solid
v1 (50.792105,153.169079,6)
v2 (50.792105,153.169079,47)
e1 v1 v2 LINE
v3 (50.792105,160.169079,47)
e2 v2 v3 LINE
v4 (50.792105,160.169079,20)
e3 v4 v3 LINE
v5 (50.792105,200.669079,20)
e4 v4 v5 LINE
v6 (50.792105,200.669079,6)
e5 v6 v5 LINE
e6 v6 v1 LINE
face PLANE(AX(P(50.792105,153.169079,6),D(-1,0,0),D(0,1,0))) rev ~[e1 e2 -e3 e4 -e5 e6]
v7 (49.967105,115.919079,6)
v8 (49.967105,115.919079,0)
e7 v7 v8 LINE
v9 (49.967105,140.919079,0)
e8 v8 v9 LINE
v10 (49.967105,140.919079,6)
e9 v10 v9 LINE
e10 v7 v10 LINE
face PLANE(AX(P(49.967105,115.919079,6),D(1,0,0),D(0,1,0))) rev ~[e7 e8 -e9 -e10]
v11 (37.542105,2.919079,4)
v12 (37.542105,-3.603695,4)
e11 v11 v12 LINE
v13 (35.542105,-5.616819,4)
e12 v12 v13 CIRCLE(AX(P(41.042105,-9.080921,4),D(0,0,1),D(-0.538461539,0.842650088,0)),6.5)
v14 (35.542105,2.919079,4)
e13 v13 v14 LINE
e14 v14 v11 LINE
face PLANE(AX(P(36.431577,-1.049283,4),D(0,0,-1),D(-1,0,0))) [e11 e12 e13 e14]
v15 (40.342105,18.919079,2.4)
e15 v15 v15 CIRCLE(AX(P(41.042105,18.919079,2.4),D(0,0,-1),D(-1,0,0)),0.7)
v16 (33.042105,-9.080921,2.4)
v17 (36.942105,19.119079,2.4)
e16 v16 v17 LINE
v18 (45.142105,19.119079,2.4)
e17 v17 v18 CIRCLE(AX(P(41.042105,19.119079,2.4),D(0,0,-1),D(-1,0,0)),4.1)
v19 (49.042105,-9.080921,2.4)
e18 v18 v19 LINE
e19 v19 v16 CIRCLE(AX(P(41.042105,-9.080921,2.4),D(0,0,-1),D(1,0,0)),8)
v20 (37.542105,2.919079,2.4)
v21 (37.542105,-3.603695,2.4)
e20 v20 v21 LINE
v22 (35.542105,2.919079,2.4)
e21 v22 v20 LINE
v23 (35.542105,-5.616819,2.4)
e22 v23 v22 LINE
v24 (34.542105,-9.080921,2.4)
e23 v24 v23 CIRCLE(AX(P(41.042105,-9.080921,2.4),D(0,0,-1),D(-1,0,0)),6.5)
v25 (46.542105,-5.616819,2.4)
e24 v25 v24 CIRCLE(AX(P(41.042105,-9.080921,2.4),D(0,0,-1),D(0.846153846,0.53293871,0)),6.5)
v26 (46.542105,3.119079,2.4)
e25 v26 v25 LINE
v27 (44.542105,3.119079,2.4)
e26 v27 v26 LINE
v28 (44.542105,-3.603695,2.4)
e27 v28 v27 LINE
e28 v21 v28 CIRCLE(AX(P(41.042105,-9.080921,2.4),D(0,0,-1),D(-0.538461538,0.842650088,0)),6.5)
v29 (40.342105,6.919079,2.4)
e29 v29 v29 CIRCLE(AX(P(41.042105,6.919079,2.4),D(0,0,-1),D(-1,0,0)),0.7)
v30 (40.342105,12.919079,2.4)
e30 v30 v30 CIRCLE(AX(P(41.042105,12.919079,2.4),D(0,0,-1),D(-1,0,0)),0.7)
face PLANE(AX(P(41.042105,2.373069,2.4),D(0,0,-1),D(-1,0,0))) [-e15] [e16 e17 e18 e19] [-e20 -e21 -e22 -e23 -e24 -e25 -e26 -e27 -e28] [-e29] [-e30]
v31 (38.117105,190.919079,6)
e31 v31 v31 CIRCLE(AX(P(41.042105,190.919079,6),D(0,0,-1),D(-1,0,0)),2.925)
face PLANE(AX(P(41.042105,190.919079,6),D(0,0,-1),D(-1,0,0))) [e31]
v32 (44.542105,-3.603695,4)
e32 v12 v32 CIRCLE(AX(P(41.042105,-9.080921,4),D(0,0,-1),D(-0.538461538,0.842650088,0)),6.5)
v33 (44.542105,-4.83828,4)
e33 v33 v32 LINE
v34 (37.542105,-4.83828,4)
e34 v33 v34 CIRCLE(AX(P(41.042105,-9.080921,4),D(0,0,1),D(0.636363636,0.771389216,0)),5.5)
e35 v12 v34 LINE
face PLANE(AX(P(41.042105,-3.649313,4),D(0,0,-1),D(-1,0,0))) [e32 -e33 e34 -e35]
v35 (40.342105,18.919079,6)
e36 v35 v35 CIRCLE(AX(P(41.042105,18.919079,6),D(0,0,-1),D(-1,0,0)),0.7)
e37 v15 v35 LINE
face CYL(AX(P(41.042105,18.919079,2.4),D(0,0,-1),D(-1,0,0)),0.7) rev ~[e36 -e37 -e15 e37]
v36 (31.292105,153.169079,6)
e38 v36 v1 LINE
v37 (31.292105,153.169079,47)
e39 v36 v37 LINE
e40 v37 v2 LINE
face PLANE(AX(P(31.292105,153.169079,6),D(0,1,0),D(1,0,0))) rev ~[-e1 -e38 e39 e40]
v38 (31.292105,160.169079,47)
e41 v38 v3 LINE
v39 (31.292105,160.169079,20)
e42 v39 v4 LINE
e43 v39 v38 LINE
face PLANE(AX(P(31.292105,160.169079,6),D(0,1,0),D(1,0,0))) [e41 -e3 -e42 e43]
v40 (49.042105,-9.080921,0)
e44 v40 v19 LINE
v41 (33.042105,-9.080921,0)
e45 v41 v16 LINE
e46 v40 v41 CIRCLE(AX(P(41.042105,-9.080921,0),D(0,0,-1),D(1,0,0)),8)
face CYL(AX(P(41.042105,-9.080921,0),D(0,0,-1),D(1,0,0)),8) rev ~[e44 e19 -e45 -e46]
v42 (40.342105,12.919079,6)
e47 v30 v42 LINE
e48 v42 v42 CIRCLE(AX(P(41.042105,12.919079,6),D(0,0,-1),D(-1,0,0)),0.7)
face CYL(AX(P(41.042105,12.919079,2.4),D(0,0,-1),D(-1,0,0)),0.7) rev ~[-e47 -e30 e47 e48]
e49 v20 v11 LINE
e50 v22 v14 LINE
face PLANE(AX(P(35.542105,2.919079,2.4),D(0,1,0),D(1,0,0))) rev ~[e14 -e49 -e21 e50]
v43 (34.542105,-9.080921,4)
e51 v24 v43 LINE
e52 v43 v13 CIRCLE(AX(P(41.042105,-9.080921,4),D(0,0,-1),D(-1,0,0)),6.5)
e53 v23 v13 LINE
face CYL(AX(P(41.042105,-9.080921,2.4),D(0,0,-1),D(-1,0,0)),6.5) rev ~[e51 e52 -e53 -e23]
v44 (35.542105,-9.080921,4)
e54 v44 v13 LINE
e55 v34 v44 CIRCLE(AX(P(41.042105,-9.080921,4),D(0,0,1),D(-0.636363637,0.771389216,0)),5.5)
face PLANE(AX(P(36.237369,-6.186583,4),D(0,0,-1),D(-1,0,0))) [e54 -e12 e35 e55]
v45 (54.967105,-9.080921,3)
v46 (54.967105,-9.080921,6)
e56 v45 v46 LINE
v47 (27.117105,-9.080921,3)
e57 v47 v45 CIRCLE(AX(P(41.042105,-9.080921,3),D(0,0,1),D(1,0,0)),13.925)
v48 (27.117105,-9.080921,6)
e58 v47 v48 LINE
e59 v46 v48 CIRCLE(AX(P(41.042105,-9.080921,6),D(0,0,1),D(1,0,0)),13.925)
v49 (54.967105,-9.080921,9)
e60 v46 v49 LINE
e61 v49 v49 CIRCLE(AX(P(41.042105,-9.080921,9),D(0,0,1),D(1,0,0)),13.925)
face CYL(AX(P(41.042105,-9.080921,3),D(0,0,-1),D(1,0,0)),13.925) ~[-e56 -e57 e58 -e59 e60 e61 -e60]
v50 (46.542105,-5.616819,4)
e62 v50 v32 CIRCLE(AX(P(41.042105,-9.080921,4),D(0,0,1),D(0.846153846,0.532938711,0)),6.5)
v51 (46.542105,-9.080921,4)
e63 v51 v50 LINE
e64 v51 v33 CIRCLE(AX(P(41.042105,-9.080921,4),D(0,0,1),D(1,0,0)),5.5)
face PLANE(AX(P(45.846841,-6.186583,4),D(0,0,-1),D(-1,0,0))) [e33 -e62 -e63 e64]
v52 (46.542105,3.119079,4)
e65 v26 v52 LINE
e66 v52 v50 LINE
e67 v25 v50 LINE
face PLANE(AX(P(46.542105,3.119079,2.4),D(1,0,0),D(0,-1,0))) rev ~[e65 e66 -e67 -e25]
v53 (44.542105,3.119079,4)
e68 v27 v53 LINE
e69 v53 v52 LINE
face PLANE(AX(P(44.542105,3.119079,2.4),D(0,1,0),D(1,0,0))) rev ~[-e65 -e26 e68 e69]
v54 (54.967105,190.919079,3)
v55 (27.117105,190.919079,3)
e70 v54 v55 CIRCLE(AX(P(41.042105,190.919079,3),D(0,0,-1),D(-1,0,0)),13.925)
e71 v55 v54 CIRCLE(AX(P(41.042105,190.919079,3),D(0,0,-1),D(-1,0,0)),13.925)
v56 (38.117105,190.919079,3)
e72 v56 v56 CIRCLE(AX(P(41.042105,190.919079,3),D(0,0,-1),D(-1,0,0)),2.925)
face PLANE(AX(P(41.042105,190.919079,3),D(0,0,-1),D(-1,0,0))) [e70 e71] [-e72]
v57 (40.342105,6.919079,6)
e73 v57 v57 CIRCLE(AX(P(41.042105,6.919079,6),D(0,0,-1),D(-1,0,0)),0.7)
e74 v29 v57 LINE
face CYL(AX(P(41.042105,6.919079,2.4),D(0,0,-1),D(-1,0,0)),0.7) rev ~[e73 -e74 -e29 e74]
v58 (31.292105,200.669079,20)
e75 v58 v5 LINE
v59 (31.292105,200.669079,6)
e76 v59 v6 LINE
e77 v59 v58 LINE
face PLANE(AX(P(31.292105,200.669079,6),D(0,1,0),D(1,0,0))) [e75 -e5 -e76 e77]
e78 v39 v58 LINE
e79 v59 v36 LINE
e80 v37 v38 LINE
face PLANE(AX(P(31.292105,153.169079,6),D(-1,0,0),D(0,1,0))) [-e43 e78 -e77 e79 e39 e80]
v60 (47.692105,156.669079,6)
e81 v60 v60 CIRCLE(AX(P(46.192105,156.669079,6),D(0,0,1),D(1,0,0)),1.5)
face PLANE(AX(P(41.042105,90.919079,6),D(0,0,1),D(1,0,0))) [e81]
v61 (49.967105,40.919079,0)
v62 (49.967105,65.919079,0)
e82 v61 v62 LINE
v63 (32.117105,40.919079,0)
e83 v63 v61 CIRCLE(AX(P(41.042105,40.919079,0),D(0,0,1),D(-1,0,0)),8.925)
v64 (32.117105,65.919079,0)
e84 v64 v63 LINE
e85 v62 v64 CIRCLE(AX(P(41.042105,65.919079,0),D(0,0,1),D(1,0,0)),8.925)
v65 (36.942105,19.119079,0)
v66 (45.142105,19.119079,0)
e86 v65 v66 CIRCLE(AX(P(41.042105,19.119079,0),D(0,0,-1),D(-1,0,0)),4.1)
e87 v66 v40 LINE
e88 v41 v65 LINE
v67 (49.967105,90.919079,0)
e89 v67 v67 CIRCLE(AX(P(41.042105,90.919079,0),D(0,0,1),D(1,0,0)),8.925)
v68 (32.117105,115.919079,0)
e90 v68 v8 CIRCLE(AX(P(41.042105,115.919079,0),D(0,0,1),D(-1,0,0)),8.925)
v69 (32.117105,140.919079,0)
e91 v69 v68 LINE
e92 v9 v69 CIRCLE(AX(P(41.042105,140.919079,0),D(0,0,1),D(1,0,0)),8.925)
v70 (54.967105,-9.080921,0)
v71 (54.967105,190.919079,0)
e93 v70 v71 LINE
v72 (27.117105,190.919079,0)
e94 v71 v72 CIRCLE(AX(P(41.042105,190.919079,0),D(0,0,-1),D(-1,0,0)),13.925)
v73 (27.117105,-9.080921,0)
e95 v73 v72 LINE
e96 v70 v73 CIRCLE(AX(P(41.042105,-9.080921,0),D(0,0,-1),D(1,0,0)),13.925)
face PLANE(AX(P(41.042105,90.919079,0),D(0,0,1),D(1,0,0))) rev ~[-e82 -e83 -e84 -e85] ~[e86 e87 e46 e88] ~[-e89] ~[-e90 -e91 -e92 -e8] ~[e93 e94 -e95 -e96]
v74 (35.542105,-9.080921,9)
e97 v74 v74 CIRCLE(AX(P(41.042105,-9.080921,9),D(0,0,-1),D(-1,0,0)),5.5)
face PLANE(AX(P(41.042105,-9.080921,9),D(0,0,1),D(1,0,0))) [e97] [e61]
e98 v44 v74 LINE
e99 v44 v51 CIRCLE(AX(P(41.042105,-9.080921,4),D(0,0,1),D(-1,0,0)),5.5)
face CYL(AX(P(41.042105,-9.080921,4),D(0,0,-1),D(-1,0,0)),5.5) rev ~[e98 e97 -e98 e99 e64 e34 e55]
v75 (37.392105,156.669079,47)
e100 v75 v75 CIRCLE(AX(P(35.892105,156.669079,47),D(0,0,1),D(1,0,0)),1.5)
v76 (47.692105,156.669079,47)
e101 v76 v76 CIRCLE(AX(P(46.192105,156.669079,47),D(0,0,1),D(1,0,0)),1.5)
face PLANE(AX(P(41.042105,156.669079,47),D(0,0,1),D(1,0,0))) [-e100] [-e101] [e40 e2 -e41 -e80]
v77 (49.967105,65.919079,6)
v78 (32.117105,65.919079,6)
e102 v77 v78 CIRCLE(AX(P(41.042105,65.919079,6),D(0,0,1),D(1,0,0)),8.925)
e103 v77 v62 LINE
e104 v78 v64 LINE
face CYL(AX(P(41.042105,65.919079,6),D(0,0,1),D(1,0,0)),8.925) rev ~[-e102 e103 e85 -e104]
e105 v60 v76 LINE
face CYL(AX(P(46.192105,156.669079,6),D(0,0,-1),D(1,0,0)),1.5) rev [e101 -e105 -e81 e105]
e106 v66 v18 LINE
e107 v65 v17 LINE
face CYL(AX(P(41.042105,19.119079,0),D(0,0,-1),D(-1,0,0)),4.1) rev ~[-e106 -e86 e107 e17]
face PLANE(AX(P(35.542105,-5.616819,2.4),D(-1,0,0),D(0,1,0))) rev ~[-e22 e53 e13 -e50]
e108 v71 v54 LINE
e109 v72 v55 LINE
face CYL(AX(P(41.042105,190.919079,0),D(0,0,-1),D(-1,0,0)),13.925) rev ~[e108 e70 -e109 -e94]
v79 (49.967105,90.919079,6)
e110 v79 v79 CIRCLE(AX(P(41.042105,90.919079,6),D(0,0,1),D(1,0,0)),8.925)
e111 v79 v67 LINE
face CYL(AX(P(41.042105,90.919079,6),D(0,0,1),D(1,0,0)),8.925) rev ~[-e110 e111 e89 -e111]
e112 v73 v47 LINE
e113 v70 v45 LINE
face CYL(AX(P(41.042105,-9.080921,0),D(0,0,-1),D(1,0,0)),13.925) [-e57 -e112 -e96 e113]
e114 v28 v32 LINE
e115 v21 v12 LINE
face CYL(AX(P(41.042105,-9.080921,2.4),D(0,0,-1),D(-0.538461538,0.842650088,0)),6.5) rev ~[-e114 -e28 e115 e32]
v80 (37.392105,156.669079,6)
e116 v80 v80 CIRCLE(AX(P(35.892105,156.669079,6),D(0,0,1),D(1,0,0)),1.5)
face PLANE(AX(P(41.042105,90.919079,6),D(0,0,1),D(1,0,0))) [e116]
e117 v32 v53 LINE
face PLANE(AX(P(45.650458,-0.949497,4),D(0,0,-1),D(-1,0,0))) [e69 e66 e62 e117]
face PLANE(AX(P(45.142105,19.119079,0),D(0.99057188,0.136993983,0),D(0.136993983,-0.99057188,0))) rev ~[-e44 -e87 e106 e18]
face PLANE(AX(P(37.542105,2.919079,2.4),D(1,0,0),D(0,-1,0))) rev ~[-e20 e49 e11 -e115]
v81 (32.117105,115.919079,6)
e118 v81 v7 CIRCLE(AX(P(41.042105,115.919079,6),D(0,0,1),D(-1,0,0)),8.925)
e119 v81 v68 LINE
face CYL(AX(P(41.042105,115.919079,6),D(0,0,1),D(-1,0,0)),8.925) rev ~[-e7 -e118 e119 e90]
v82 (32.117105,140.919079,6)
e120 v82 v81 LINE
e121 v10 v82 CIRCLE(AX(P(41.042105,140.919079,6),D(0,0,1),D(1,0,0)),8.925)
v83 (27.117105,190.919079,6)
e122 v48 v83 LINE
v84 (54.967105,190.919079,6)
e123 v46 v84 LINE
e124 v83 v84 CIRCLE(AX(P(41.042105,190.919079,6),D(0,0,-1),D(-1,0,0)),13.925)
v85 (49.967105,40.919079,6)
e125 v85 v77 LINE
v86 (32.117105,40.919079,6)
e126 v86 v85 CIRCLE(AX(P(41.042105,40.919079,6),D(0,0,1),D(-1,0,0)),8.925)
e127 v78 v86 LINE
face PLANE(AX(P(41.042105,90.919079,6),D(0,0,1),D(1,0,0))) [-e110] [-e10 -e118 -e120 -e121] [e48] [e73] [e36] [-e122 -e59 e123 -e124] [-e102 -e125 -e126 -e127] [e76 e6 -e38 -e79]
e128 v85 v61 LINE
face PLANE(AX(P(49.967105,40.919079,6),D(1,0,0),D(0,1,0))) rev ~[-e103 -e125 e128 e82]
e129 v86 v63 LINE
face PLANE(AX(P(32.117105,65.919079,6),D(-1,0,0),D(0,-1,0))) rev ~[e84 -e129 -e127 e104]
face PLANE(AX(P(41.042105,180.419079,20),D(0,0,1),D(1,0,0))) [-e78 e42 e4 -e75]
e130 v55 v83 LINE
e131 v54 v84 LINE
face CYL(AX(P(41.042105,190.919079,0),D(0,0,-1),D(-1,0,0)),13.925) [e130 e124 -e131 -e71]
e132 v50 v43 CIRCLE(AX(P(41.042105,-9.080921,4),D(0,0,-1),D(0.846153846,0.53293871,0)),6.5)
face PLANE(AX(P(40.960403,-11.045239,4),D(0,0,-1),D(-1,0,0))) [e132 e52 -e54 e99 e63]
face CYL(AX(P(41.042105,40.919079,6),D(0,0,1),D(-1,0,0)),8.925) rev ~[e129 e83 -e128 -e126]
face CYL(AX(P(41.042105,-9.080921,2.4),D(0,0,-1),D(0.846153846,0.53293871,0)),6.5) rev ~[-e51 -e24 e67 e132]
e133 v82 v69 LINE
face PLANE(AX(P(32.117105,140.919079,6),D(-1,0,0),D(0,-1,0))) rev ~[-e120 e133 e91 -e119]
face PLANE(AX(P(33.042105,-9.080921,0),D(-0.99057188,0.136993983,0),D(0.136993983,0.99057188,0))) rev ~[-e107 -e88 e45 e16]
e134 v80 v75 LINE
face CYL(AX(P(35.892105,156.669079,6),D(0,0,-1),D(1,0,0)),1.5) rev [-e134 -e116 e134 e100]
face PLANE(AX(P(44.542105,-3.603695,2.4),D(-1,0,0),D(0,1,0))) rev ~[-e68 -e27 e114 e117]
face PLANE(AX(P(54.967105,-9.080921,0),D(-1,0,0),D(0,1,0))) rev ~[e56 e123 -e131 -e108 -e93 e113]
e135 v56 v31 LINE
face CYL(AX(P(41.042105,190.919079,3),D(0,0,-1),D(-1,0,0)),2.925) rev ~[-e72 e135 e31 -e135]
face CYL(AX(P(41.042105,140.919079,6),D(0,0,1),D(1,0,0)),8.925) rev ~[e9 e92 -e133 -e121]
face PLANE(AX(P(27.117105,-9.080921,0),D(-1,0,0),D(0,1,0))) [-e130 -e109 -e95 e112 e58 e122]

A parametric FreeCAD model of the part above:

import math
import FreeCAD as App
import Part
import Sketcher

V = App.Vector
Q = App.Units.Quantity


def add_polygon(sketch, points):
    """Adds a closed chain of lines whose ends are joined by coincident constraints."""
    first, n = sketch.GeometryCount, len(points)
    for a, b in zip(points, points[1:] + points[:1]):
        sketch.addGeometry(Part.LineSegment(App.Vector(*a, 0), App.Vector(*b, 0)), False)
    for i in range(n):
        sketch.addConstraint(Sketcher.Constraint("Coincident", first + i, 2, first + (i + 1) % n, 1))

doc = App.newDocument("Part")
body = doc.addObject("PartDesign::Body", "Body")

# Sketch on XY plane
sketch1 = body.newObject("Sketcher::SketchObject", "Sketch")
sketch1.AttachmentSupport = (doc.getObject("XY_Plane"), [""])
sketch1.MapMode = "FlatFace"
sketch1.addGeometry(Part.LineSegment(V(27.117105, 190.919079, 0), V(27.117105, -9.080921, 0)), False)
sketch1.addGeometry(Part.ArcOfCircle(Part.Circle(V(41.042105, -9.080921, 0), V(0, 0, 1), 13.925), math.radians(180), math.radians(360)), False)
sketch1.addGeometry(Part.LineSegment(V(54.967105, -9.080921, 0), V(54.967105, 190.919079, 0)), False)
sketch1.addGeometry(Part.ArcOfCircle(Part.Circle(V(41.042105, 190.919079, 0), V(0, 0, 1), 13.925), math.radians(0), math.radians(180)), False)
sketch1.addConstraint(Sketcher.Constraint("Tangent", 0, 2, 1, 1))
sketch1.addConstraint(Sketcher.Constraint("Tangent", 1, 2, 2, 1))
sketch1.addConstraint(Sketcher.Constraint("Tangent", 2, 2, 3, 1))
sketch1.addConstraint(Sketcher.Constraint("Tangent", 3, 2, 0, 1))
sketch1.addConstraint(Sketcher.Constraint("Vertical", 0))
sketch1.addConstraint(Sketcher.Constraint("Vertical", 2))
sketch1.addConstraint(Sketcher.Constraint("DistanceY", 0, 2, 0, 1, Q("200 mm")))
sketch1.addConstraint(Sketcher.Constraint("Radius", 1, Q("13.925 mm")))
sketch1.addConstraint(Sketcher.Constraint("DistanceY", 1, 3, -1, 1, Q("9.080921 mm")))
sketch1.addConstraint(Sketcher.Constraint("DistanceX", -1, 1, 1, 3, Q("41.042105 mm")))
pad1 = body.newObject("PartDesign::Pad", "Pad")
pad1.Profile = sketch1
pad1.Length = 6

# Sketch on XY plane
sketch2 = body.newObject("Sketcher::SketchObject", "Sketch001")
sketch2.AttachmentSupport = (doc.getObject("XY_Plane"), [""])
sketch2.MapMode = "FlatFace"
sketch2.AttachmentOffset = App.Placement(V(0, 0, 3), App.Rotation())
sketch2.addGeometry(Part.Circle(V(41.042105, -9.080921, 0), V(0, 0, 1), 13.925), False)
sketch2.addConstraint(Sketcher.Constraint("Diameter", 0, Q("27.85 mm")))
sketch2.addConstraint(Sketcher.Constraint("DistanceY", 0, 3, -1, 1, Q("9.080921 mm")))
sketch2.addConstraint(Sketcher.Constraint("DistanceX", -1, 1, 0, 3, Q("41.042105 mm")))
pocket1 = body.newObject("PartDesign::Pocket", "Pocket")
pocket1.Profile = sketch2
pocket1.Length = 3
pocket1.Reversed = True

# Sketch on XY plane
sketch3 = body.newObject("Sketcher::SketchObject", "Sketch002")
sketch3.AttachmentSupport = (doc.getObject("XY_Plane"), [""])
sketch3.MapMode = "FlatFace"
sketch3.addGeometry(Part.Circle(V(41.042105, 190.919079, 0), V(0, 0, 1), 13.925), False)
sketch3.addConstraint(Sketcher.Constraint("Diameter", 0, Q("27.85 mm")))
sketch3.addConstraint(Sketcher.Constraint("DistanceY", -1, 1, 0, 3, Q("190.919079 mm")))
sketch3.addConstraint(Sketcher.Constraint("DistanceX", -1, 1, 0, 3, Q("41.042105 mm")))
pocket2 = body.newObject("PartDesign::Pocket", "Pocket001")
pocket2.Profile = sketch3
pocket2.Length = 3
pocket2.Reversed = True

# Sketch on XY plane
sketch4 = body.newObject("Sketcher::SketchObject", "Sketch003")
sketch4.AttachmentSupport = (doc.getObject("XY_Plane"), [""])
sketch4.MapMode = "FlatFace"
sketch4.AttachmentOffset = App.Placement(V(0, 0, 6), App.Rotation())
sketch4.addGeometry(Part.Circle(V(41.042105, 90.919079, 0), V(0, 0, 1), 8.925), False)
sketch4.addGeometry(Part.LineSegment(V(32.117105, 65.919079, 0), V(32.117105, 40.919079, 0)), False)
sketch4.addGeometry(Part.ArcOfCircle(Part.Circle(V(41.042105, 40.919079, 0), V(0, 0, 1), 8.925), math.radians(180), math.radians(360)), False)
sketch4.addGeometry(Part.LineSegment(V(49.967105, 40.919079, 0), V(49.967105, 65.919079, 0)), False)
sketch4.addGeometry(Part.ArcOfCircle(Part.Circle(V(41.042105, 65.919079, 0), V(0, 0, 1), 8.925), math.radians(0), math.radians(180)), False)
sketch4.addGeometry(Part.LineSegment(V(32.117105, 140.919079, 0), V(32.117105, 115.919079, 0)), False)
sketch4.addGeometry(Part.ArcOfCircle(Part.Circle(V(41.042105, 115.919079, 0), V(0, 0, 1), 8.925), math.radians(180), math.radians(360)), False)
sketch4.addGeometry(Part.LineSegment(V(49.967105, 115.919079, 0), V(49.967105, 140.919079, 0)), False)
sketch4.addGeometry(Part.ArcOfCircle(Part.Circle(V(41.042105, 140.919079, 0), V(0, 0, 1), 8.925), math.radians(0), math.radians(180)), False)
sketch4.addConstraint(Sketcher.Constraint("Tangent", 1, 2, 2, 1))
sketch4.addConstraint(Sketcher.Constraint("Tangent", 2, 2, 3, 1))
sketch4.addConstraint(Sketcher.Constraint("Tangent", 3, 2, 4, 1))
sketch4.addConstraint(Sketcher.Constraint("Tangent", 4, 2, 1, 1))
sketch4.addConstraint(Sketcher.Constraint("Tangent", 5, 2, 6, 1))
sketch4.addConstraint(Sketcher.Constraint("Tangent", 6, 2, 7, 1))
sketch4.addConstraint(Sketcher.Constraint("Tangent", 7, 2, 8, 1))
sketch4.addConstraint(Sketcher.Constraint("Tangent", 8, 2, 5, 1))
sketch4.addConstraint(Sketcher.Constraint("Vertical", 1))
sketch4.addConstraint(Sketcher.Constraint("Vertical", 3))
sketch4.addConstraint(Sketcher.Constraint("Vertical", 5))
sketch4.addConstraint(Sketcher.Constraint("Vertical", 7))
sketch4.addConstraint(Sketcher.Constraint("Equal", 0, 2))
sketch4.addConstraint(Sketcher.Constraint("Equal", 4, 6))
sketch4.addConstraint(Sketcher.Constraint("Vertical", 0, 3, 2, 3))
sketch4.addConstraint(Sketcher.Constraint("Vertical", 4, 3, 6, 3))
sketch4.addConstraint(Sketcher.Constraint("Equal", 3, 5))
sketch4.addConstraint(Sketcher.Constraint("Diameter", 0, Q("17.85 mm")))
sketch4.addConstraint(Sketcher.Constraint("DistanceY", 1, 2, 1, 1, Q("25 mm")))
sketch4.addConstraint(Sketcher.Constraint("DistanceY", 2, 3, 0, 3, Q("50 mm")))
sketch4.addConstraint(Sketcher.Constraint("DistanceY", 0, 3, 6, 3, Q("25 mm")))
sketch4.addConstraint(Sketcher.Constraint("DistanceY", -1, 1, 0, 3, Q("90.919079 mm")))
sketch4.addConstraint(Sketcher.Constraint("DistanceX", -1, 1, 0, 3, Q("41.042105 mm")))
pocket3 = body.newObject("PartDesign::Pocket", "Pocket002")
pocket3.Profile = sketch4
pocket3.Length = 10

# Sketch on XY plane
sketch5 = body.newObject("Sketcher::SketchObject", "Sketch004")
sketch5.AttachmentSupport = (doc.getObject("XY_Plane"), [""])
sketch5.MapMode = "FlatFace"
sketch5.AttachmentOffset = App.Placement(V(0, 0, 6), App.Rotation())
add_polygon(sketch5, [(31.292105, 200.669079), (31.292105, 160.169079), (50.792105, 160.169079), (50.792105, 200.669079)])  # lines 0-3
sketch5.addConstraint(Sketcher.Constraint("Vertical", 0))
sketch5.addConstraint(Sketcher.Constraint("Horizontal", 1))
sketch5.addConstraint(Sketcher.Constraint("Vertical", 2))
sketch5.addConstraint(Sketcher.Constraint("Horizontal", 3))
sketch5.addConstraint(Sketcher.Constraint("DistanceX", 1, 1, 1, 2, Q("19.5 mm")))
sketch5.addConstraint(Sketcher.Constraint("DistanceY", 0, 2, 0, 1, Q("40.5 mm")))
sketch5.addConstraint(Sketcher.Constraint("DistanceY", -1, 1, 0, 2, Q("160.169079 mm")))
sketch5.addConstraint(Sketcher.Constraint("DistanceX", -1, 1, 0, 2, Q("31.292105 mm")))
pad2 = body.newObject("PartDesign::Pad", "Pad001")
pad2.Profile = sketch5
pad2.Length = 14

# Sketch on XY plane
sketch6 = body.newObject("Sketcher::SketchObject", "Sketch005")
sketch6.AttachmentSupport = (doc.getObject("XY_Plane"), [""])
sketch6.MapMode = "FlatFace"
sketch6.AttachmentOffset = App.Placement(V(0, 0, 6), App.Rotation())
add_polygon(sketch6, [(31.292105, 160.169079), (31.292105, 153.169079), (50.792105, 153.169079), (50.792105, 160.169079)])  # lines 0-3
sketch6.addGeometry(Part.Circle(V(35.892105, 156.669079, 0), V(0, 0, 1), 1.5), False)  # 4
sketch6.addGeometry(Part.Circle(V(46.192105, 156.669079, 0), V(0, 0, 1), 1.5), False)  # 5
sketch6.addConstraint(Sketcher.Constraint("Vertical", 0))
sketch6.addConstraint(Sketcher.Constraint("Horizontal", 1))
sketch6.addConstraint(Sketcher.Constraint("Vertical", 2))
sketch6.addConstraint(Sketcher.Constraint("Horizontal", 3))
sketch6.addConstraint(Sketcher.Constraint("Equal", 4, 5))
sketch6.addConstraint(Sketcher.Constraint("Horizontal", 4, 3, 5, 3))
sketch6.addConstraint(Sketcher.Constraint("Diameter", 4, Q("3 mm")))
sketch6.addConstraint(Sketcher.Constraint("DistanceY", 0, 2, 0, 1, Q("7 mm")))
sketch6.addConstraint(Sketcher.Constraint("DistanceX", 1, 1, 1, 2, Q("19.5 mm")))
sketch6.addConstraint(Sketcher.Constraint("DistanceX", 4, 3, 5, 3, Q("10.3 mm")))
sketch6.addConstraint(Sketcher.Constraint("DistanceX", 0, 2, 4, 3, Q("4.6 mm")))
sketch6.addConstraint(Sketcher.Constraint("DistanceY", 0, 2, 4, 3, Q("3.5 mm")))
sketch6.addConstraint(Sketcher.Constraint("DistanceY", -1, 1, 4, 3, Q("156.669079 mm")))
sketch6.addConstraint(Sketcher.Constraint("DistanceX", -1, 1, 4, 3, Q("35.892105 mm")))
pad3 = body.newObject("PartDesign::Pad", "Pad002")
pad3.Profile = sketch6
pad3.Length = 41

# Sketch on XY plane
sketch7 = body.newObject("Sketcher::SketchObject", "Sketch006")
sketch7.AttachmentSupport = (doc.getObject("XY_Plane"), [""])
sketch7.MapMode = "FlatFace"
sketch7.addGeometry(Part.Circle(V(41.042105, -9.080921, 0), V(0, 0, 1), 2.925), False)
sketch7.addConstraint(Sketcher.Constraint("Diameter", 0, Q("5.85 mm")))
sketch7.addConstraint(Sketcher.Constraint("DistanceY", 0, 3, -1, 1, Q("9.080921 mm")))
sketch7.addConstraint(Sketcher.Constraint("DistanceX", -1, 1, 0, 3, Q("41.042105 mm")))
pocket4 = body.newObject("PartDesign::Pocket", "Pocket003")
pocket4.Profile = sketch7
pocket4.Length = 10
pocket4.Reversed = True

# Sketch on XY plane
sketch8 = body.newObject("Sketcher::SketchObject", "Sketch007")
sketch8.AttachmentSupport = (doc.getObject("XY_Plane"), [""])
sketch8.MapMode = "FlatFace"
sketch8.AttachmentOffset = App.Placement(V(0, 0, 3), App.Rotation())
sketch8.addGeometry(Part.Circle(V(41.042105, 190.919079, 0), V(0, 0, 1), 2.925), False)
sketch8.addConstraint(Sketcher.Constraint("Diameter", 0, Q("5.85 mm")))
sketch8.addConstraint(Sketcher.Constraint("DistanceY", -1, 1, 0, 3, Q("190.919079 mm")))
sketch8.addConstraint(Sketcher.Constraint("DistanceX", -1, 1, 0, 3, Q("41.042105 mm")))
pocket5 = body.newObject("PartDesign::Pocket", "Pocket004")
pocket5.Profile = sketch8
pocket5.Length = 3
pocket5.Reversed = True

# Sketch on XY plane
sketch9 = body.newObject("Sketcher::SketchObject", "Sketch008")
sketch9.AttachmentSupport = (doc.getObject("XY_Plane"), [""])
sketch9.MapMode = "FlatFace"
sketch9.AttachmentOffset = App.Placement(V(0, 0, 3), App.Rotation())
sketch9.addGeometry(Part.Circle(V(41.042105, -9.080921, 0), V(0, 0, 1), 13.925), False)
sketch9.addConstraint(Sketcher.Constraint("Diameter", 0, Q("27.85 mm")))
sketch9.addConstraint(Sketcher.Constraint("DistanceY", 0, 3, -1, 1, Q("9.080921 mm")))
sketch9.addConstraint(Sketcher.Constraint("DistanceX", -1, 1, 0, 3, Q("41.042105 mm")))
pad4 = body.newObject("PartDesign::Pad", "Pad003")
pad4.Profile = sketch9
pad4.Length = 6

# Sketch on XY plane
sketch10 = body.newObject("Sketcher::SketchObject", "Sketch009")
sketch10.AttachmentSupport = (doc.getObject("XY_Plane"), [""])
sketch10.MapMode = "FlatFace"
sketch10.AttachmentOffset = App.Placement(V(0, 0, 3), App.Rotation())
sketch10.addGeometry(Part.Circle(V(41.042105, -9.080921, 0), V(0, 0, 1), 2.925), False)
sketch10.addConstraint(Sketcher.Constraint("Diameter", 0, Q("5.85 mm")))
sketch10.addConstraint(Sketcher.Constraint("DistanceY", 0, 3, -1, 1, Q("9.080921 mm")))
sketch10.addConstraint(Sketcher.Constraint("DistanceX", -1, 1, 0, 3, Q("41.042105 mm")))
pocket6 = body.newObject("PartDesign::Pocket", "Pocket005")
pocket6.Profile = sketch10
pocket6.Length = 6
pocket6.Reversed = True

# Sketch on XY plane
sketch11 = body.newObject("Sketcher::SketchObject", "Sketch010")
sketch11.AttachmentSupport = (doc.getObject("XY_Plane"), [""])
sketch11.MapMode = "FlatFace"
sketch11.addGeometry(Part.LineSegment(V(33.042105, -9.080921, 0), V(36.942105, 19.119079, 0)), False)
sketch11.addGeometry(Part.ArcOfCircle(Part.Circle(V(41.042105, 19.119079, 0), V(0, 0, 1), 4.1), math.radians(0), math.radians(180)), False)
sketch11.addGeometry(Part.LineSegment(V(45.142105, 19.119079, 0), V(49.042105, -9.080921, 0)), False)
sketch11.addGeometry(Part.ArcOfCircle(Part.Circle(V(41.042105, -9.080921, 0), V(0, 0, 1), 8), math.radians(180), math.radians(360)), False)
sketch11.addGeometry(Part.Circle(V(41.042105, -9.080921, 0), V(0, 0, 1), 2.925), False)
sketch11.addConstraint(Sketcher.Constraint("Coincident", 0, 2, 1, 2))
sketch11.addConstraint(Sketcher.Constraint("Coincident", 1, 1, 2, 1))
sketch11.addConstraint(Sketcher.Constraint("Coincident", 2, 2, 3, 2))
sketch11.addConstraint(Sketcher.Constraint("Coincident", 3, 1, 0, 1))
sketch11.addConstraint(Sketcher.Constraint("Coincident", 4, 3, 3, 3))
sketch11.addConstraint(Sketcher.Constraint("Horizontal", 1, 3, 0, 2))
sketch11.addConstraint(Sketcher.Constraint("Horizontal", 0, 2, 1, 1))
sketch11.addConstraint(Sketcher.Constraint("Horizontal", 4, 3, 2, 2))
sketch11.addConstraint(Sketcher.Constraint("Horizontal", 2, 2, 3, 1))
sketch11.addConstraint(Sketcher.Constraint("Vertical", 1, 3, 3, 3))
sketch11.addConstraint(Sketcher.Constraint("Radius", 3, Q("8 mm")))
sketch11.addConstraint(Sketcher.Constraint("Radius", 1, Q("4.1 mm")))
sketch11.addConstraint(Sketcher.Constraint("Diameter", 4, Q("5.85 mm")))
sketch11.addConstraint(Sketcher.Constraint("DistanceY", 3, 3, 1, 3, Q("28.2 mm")))
sketch11.addConstraint(Sketcher.Constraint("DistanceY", -1, 1, 1, 3, Q("19.119079 mm")))
sketch11.addConstraint(Sketcher.Constraint("DistanceX", -1, 1, 1, 3, Q("41.042105 mm")))
pocket7 = body.newObject("PartDesign::Pocket", "Pocket006")
pocket7.Profile = sketch11
pocket7.Length = 2.4
pocket7.Reversed = True

# Sketch on XY plane
sketch12 = body.newObject("Sketcher::SketchObject", "Sketch011")
sketch12.AttachmentSupport = (doc.getObject("XY_Plane"), [""])
sketch12.MapMode = "FlatFace"
sketch12.AttachmentOffset = App.Placement(V(0, 0, 2.4), App.Rotation())
sketch12.addGeometry(Part.LineSegment(V(46.542105, 3.119079, 0), V(46.542105, -5.616819, 0)), False)
sketch12.addGeometry(Part.ArcOfCircle(Part.Circle(V(41.042105, -9.080921, 0), V(0, 0, 1), 6.5), math.radians(180), math.radians(392.204228)), False)
sketch12.addGeometry(Part.ArcOfCircle(Part.Circle(V(41.042105, -9.080921, 0), V(0, 0, 1), 6.5), math.radians(147.795773), math.radians(180)), False)
sketch12.addGeometry(Part.LineSegment(V(35.542105, -5.616819, 0), V(35.542105, 2.919079, 0)), False)
sketch12.addGeometry(Part.LineSegment(V(35.542105, 2.919079, 0), V(37.542105, 2.919079, 0)), False)
sketch12.addGeometry(Part.LineSegment(V(37.542105, 2.919079, 0), V(37.542105, -3.603695, 0)), False)
sketch12.addGeometry(Part.ArcOfCircle(Part.Circle(V(41.042105, -9.080921, 0), V(0, 0, 1), 6.5), math.radians(57.42103), math.radians(122.57897)), False)
sketch12.addGeometry(Part.LineSegment(V(44.542105, -3.603695, 0), V(44.542105, 3.119079, 0)), False)
sketch12.addGeometry(Part.LineSegment(V(44.542105, 3.119079, 0), V(46.542105, 3.119079, 0)), False)
sketch12.addGeometry(Part.Circle(V(41.042105, -9.080921, 0), V(0, 0, 1), 2.925), False)
sketch12.addConstraint(Sketcher.Constraint("Coincident", 0, 2, 1, 2))
sketch12.addConstraint(Sketcher.Constraint("Tangent", 1, 1, 2, 2))
sketch12.addConstraint(Sketcher.Constraint("Coincident", 2, 1, 3, 1))
sketch12.addConstraint(Sketcher.Constraint("Coincident", 3, 2, 4, 1))
sketch12.addConstraint(Sketcher.Constraint("Coincident", 4, 2, 5, 1))
sketch12.addConstraint(Sketcher.Constraint("Coincident", 5, 2, 6, 2))
sketch12.addConstraint(Sketcher.Constraint("Coincident", 6, 1, 7, 1))
sketch12.addConstraint(Sketcher.Constraint("Coincident", 7, 2, 8, 1))
sketch12.addConstraint(Sketcher.Constraint("Coincident", 8, 2, 0, 1))
sketch12.addConstraint(Sketcher.Constraint("Vertical", 0))
sketch12.addConstraint(Sketcher.Constraint("Vertical", 3))
sketch12.addConstraint(Sketcher.Constraint("Horizontal", 4))
sketch12.addConstraint(Sketcher.Constraint("Vertical", 5))
sketch12.addConstraint(Sketcher.Constraint("Vertical", 7))
sketch12.addConstraint(Sketcher.Constraint("Horizontal", 8))
sketch12.addConstraint(Sketcher.Constraint("Coincident", 6, 3, 1, 3))
sketch12.addConstraint(Sketcher.Constraint("Coincident", 9, 3, 1, 3))
sketch12.addConstraint(Sketcher.Constraint("Equal", 1, 2))
sketch12.addConstraint(Sketcher.Constraint("Equal", 2, 6))
sketch12.addConstraint(Sketcher.Constraint("Horizontal", 9, 3, 1, 1))
sketch12.addConstraint(Sketcher.Constraint("Horizontal", 0, 2, 2, 1))
sketch12.addConstraint(Sketcher.Constraint("Horizontal", 5, 2, 6, 1))
sketch12.addConstraint(Sketcher.Constraint("Radius", 1, Q("6.5 mm")))
sketch12.addConstraint(Sketcher.Constraint("Diameter", 9, Q("5.85 mm")))
sketch12.addConstraint(Sketcher.Constraint("DistanceX", 4, 1, 4, 2, Q("2 mm")))
sketch12.addConstraint(Sketcher.Constraint("DistanceX", 1, 1, 0, 2, Q("12 mm")))
sketch12.addConstraint(Sketcher.Constraint("DistanceY", 1, 1, 3, 2, Q("12 mm")))
sketch12.addConstraint(Sketcher.Constraint("DistanceY", 4, 2, 7, 2, Q("0.2 mm")))
sketch12.addConstraint(Sketcher.Constraint("DistanceY", 1, 3, -1, 1, Q("9.080921 mm")))
sketch12.addConstraint(Sketcher.Constraint("DistanceX", -1, 1, 1, 3, Q("41.042105 mm")))
pocket8 = body.newObject("PartDesign::Pocket", "Pocket007")
pocket8.Profile = sketch12
pocket8.Length = 1.6
pocket8.Reversed = True

# Sketch on XY plane
sketch13 = body.newObject("Sketcher::SketchObject", "Sketch012")
sketch13.AttachmentSupport = (doc.getObject("XY_Plane"), [""])
sketch13.MapMode = "FlatFace"
sketch13.AttachmentOffset = App.Placement(V(0, 0, 4), App.Rotation())
sketch13.addGeometry(Part.Circle(V(41.042105, -9.080921, 0), V(0, 0, 1), 5.5), False)
sketch13.addConstraint(Sketcher.Constraint("Diameter", 0, Q("11 mm")))
sketch13.addConstraint(Sketcher.Constraint("DistanceY", 0, 3, -1, 1, Q("9.080921 mm")))
sketch13.addConstraint(Sketcher.Constraint("DistanceX", -1, 1, 0, 3, Q("41.042105 mm")))
pocket9 = body.newObject("PartDesign::Pocket", "Pocket008")
pocket9.Profile = sketch13
pocket9.Length = 5
pocket9.Reversed = True

# Sketch on XY plane
sketch14 = body.newObject("Sketcher::SketchObject", "Sketch013")
sketch14.AttachmentSupport = (doc.getObject("XY_Plane"), [""])
sketch14.MapMode = "FlatFace"
sketch14.AttachmentOffset = App.Placement(V(0, 0, 2.4), App.Rotation())
sketch14.addGeometry(Part.Circle(V(41.042105, 6.919079, 0), V(0, 0, 1), 0.7), False)
sketch14.addGeometry(Part.Circle(V(41.042105, 12.919079, 0), V(0, 0, 1), 0.7), False)
sketch14.addGeometry(Part.Circle(V(41.042105, 18.919079, 0), V(0, 0, 1), 0.7), False)
sketch14.addConstraint(Sketcher.Constraint("Equal", 0, 1))
sketch14.addConstraint(Sketcher.Constraint("Equal", 1, 2))
sketch14.addConstraint(Sketcher.Constraint("Vertical", 0, 3, 1, 3))
sketch14.addConstraint(Sketcher.Constraint("Vertical", 1, 3, 2, 3))
sketch14.addConstraint(Sketcher.Constraint("Diameter", 0, Q("1.4 mm")))
sketch14.addConstraint(Sketcher.Constraint("DistanceY", 0, 3, 1, 3, Q("6 mm")))
sketch14.addConstraint(Sketcher.Constraint("DistanceY", 1, 3, 2, 3, Q("6 mm")))
sketch14.addConstraint(Sketcher.Constraint("DistanceY", -1, 1, 0, 3, Q("6.919079 mm")))
sketch14.addConstraint(Sketcher.Constraint("DistanceX", -1, 1, 0, 3, Q("41.042105 mm")))
pocket10 = body.newObject("PartDesign::Pocket", "Pocket009")
pocket10.Profile = sketch14
pocket10.Length = 45
pocket10.Reversed = True

doc.recompute()
